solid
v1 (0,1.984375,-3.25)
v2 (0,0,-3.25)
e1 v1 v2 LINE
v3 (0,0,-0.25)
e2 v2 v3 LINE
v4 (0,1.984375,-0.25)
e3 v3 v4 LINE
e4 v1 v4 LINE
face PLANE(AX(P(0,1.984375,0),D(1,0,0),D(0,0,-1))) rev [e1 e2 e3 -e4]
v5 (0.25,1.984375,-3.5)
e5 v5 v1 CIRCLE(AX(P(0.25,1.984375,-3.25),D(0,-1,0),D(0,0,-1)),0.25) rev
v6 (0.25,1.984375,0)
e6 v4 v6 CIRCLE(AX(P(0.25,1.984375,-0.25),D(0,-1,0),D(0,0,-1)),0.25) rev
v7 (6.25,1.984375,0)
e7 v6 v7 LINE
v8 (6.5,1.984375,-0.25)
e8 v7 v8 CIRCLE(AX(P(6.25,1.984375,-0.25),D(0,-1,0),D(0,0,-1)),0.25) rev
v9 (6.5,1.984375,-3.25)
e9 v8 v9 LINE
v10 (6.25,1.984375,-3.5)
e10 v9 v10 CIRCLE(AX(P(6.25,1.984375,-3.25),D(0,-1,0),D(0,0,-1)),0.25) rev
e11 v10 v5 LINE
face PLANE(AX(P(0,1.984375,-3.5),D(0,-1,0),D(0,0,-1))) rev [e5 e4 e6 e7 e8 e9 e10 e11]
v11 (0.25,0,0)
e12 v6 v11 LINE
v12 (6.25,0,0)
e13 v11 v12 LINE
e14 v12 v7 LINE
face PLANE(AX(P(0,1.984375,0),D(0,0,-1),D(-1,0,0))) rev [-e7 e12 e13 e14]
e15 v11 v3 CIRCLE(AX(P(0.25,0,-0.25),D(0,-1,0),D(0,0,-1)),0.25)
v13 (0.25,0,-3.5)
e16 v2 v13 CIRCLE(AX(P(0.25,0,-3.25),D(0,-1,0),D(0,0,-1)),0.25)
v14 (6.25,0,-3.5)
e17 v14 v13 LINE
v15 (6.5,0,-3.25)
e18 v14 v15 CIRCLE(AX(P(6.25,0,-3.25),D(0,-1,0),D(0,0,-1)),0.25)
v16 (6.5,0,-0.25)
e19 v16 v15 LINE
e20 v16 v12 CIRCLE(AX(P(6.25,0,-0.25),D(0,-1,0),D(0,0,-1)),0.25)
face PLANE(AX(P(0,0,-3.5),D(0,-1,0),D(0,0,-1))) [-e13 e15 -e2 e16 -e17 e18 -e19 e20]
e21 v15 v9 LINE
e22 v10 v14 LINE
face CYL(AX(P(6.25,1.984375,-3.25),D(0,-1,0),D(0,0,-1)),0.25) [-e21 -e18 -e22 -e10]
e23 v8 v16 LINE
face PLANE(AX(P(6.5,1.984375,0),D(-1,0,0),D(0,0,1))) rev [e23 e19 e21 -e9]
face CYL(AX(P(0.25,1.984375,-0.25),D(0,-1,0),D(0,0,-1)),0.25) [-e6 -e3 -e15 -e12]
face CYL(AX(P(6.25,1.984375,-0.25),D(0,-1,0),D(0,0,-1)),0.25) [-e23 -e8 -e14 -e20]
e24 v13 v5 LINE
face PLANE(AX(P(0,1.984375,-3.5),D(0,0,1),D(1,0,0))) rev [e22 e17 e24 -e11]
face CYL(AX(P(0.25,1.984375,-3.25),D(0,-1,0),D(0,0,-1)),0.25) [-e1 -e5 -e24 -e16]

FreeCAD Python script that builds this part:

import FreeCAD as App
import Part
import Sketcher

V = App.Vector


def edges_at(feature, points):
    """Names of the edges that pass closest to the given points."""
    edges = feature.Shape.Edges
    near = lambda p: min(range(len(edges)), key=lambda i: edges[i].distToShape(Part.Vertex(*p))[0])
    return sorted({f"Edge{near(p) + 1}" for p in points})

doc = App.newDocument("Part")
body = doc.addObject("PartDesign::Body", "Body")

# Sketch on XZ plane
sketch1 = body.newObject("Sketcher::SketchObject", "Sketch")
sketch1.AttachmentSupport = (doc.getObject("XZ_Plane"), [""])
sketch1.MapMode = "FlatFace"
sketch1.addGeometry(Part.LineSegment(V(0, -3.5, 0), V(0, 0, 0)), False)
sketch1.addGeometry(Part.LineSegment(V(0, 0, 0), V(6.5, 0, 0)), False)
sketch1.addGeometry(Part.LineSegment(V(6.5, 0, 0), V(6.5, -3.5, 0)), False)
sketch1.addGeometry(Part.LineSegment(V(6.5, -3.5, 0), V(0, -3.5, 0)), False)
sketch1.addConstraint(Sketcher.Constraint("Coincident", 0, 2, 1, 1))
sketch1.addConstraint(Sketcher.Constraint("Coincident", 1, 2, 2, 1))
sketch1.addConstraint(Sketcher.Constraint("Coincident", 2, 2, 3, 1))
sketch1.addConstraint(Sketcher.Constraint("Coincident", 3, 2, 0, 1))
sketch1.addConstraint(Sketcher.Constraint("Vertical", 0))
sketch1.addConstraint(Sketcher.Constraint("Horizontal", 1))
sketch1.addConstraint(Sketcher.Constraint("Vertical", 2))
sketch1.addConstraint(Sketcher.Constraint("Horizontal", 3))
sketch1.addConstraint(Sketcher.Constraint("Coincident", 0, 2, -1, 1))
sketch1.addConstraint(Sketcher.Constraint("DistanceX", 1, 1, 1, 2, 6.5))
sketch1.addConstraint(Sketcher.Constraint("DistanceY", 0, 1, 0, 2, 3.5))
pad1 = body.newObject("PartDesign::Pad", "Pad")
pad1.Profile = sketch1
pad1.Length = 1.984375
pad1.Reversed = True
doc.recompute()

fillet = body.newObject("PartDesign::Fillet", "Fillet")
fillet.Base = (pad1, edges_at(pad1, [(6.5, 0.992, 0), (0, 0.992, 0)]))
fillet.Radius = 0.25
doc.recompute()

fillet2 = body.newObject("PartDesign::Fillet", "Fillet001")
fillet2.Base = (fillet, edges_at(fillet, [(0, 0.992, -3.5), (6.5, 0.992, -3.5)]))
fillet2.Radius = 0.25

doc.recompute()
